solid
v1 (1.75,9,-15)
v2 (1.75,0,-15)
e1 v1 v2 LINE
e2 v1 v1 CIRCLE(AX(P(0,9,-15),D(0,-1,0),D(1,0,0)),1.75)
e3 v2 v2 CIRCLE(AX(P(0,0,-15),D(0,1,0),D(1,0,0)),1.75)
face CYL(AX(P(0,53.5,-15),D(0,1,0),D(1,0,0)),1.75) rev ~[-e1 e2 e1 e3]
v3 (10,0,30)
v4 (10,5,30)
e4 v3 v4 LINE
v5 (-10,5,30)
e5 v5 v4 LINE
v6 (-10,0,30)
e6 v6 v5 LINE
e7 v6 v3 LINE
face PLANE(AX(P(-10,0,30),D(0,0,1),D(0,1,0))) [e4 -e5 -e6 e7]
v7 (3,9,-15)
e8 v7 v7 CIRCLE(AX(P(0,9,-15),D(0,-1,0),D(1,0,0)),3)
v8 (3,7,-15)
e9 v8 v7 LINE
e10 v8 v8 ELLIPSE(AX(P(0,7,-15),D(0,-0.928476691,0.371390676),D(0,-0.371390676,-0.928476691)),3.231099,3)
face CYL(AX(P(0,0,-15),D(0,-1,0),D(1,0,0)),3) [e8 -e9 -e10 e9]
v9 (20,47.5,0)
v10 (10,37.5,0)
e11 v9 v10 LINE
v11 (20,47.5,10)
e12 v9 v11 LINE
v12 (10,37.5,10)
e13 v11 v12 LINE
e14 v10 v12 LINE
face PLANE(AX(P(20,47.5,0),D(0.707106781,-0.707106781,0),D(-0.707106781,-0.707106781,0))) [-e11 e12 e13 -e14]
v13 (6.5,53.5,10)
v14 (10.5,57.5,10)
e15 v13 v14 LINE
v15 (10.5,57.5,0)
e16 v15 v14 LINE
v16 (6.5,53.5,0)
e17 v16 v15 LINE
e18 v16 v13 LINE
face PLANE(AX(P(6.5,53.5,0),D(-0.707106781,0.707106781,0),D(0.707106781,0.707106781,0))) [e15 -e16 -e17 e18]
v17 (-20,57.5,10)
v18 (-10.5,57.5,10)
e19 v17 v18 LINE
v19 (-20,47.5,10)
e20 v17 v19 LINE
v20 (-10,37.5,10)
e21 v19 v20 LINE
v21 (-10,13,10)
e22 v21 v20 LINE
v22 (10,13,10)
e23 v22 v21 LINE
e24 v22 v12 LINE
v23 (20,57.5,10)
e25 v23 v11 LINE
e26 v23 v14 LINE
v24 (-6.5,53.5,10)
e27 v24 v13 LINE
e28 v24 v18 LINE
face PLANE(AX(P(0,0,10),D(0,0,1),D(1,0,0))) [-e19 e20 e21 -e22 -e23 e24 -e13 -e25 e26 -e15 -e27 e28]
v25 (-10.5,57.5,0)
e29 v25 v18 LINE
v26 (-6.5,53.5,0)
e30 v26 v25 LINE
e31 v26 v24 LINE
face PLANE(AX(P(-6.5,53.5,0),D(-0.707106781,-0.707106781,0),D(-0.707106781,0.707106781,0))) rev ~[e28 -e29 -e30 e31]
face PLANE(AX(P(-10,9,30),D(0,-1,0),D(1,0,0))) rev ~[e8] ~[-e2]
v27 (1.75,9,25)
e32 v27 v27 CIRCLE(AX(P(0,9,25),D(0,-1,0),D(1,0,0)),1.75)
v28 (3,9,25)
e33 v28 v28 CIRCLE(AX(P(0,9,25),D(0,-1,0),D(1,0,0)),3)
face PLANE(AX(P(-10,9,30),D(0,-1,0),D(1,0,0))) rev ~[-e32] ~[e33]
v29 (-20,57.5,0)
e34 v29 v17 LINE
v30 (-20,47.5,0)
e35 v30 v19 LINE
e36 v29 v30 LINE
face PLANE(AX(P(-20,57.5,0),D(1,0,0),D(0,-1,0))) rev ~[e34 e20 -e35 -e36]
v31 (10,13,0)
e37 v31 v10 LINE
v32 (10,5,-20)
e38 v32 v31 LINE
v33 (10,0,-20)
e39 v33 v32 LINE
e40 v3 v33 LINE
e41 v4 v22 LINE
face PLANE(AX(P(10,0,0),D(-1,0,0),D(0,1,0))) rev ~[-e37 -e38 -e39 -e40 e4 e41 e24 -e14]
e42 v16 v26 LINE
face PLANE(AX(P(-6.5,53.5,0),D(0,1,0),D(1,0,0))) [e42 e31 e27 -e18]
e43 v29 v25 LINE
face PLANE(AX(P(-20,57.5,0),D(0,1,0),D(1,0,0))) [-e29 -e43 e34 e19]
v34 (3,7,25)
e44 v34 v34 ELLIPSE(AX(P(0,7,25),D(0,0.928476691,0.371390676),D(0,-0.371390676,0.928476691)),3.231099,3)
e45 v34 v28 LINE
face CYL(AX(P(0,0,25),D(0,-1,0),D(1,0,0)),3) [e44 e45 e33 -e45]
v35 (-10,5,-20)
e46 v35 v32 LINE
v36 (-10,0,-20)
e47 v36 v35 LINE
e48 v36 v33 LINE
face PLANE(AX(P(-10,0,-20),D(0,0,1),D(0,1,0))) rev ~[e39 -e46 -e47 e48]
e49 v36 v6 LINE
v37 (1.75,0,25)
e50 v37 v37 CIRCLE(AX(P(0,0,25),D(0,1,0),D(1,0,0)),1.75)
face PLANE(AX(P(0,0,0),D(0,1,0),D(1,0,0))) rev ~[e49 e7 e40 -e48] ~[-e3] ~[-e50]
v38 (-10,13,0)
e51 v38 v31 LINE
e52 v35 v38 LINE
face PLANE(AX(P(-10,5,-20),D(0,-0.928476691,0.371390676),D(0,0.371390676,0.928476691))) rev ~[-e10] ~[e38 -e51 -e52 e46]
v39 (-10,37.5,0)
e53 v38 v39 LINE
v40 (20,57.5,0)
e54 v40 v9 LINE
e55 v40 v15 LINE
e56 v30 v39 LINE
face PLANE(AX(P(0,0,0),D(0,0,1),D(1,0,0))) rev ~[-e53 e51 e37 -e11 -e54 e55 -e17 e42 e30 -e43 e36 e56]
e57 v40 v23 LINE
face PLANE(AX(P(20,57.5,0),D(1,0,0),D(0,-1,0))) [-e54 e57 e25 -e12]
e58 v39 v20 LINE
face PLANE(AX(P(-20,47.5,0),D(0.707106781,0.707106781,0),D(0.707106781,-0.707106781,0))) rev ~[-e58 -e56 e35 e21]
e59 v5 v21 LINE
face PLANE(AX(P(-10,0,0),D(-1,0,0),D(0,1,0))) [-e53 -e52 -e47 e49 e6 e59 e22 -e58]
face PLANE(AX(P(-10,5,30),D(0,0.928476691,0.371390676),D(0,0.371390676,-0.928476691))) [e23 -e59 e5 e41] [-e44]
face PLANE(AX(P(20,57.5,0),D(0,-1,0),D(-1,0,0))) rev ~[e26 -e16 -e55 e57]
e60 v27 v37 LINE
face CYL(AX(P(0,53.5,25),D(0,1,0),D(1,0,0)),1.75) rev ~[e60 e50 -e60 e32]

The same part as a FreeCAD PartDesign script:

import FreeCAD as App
import Part
import Sketcher
Q = App.Units.Quantity


def add_polygon(sketch, points):
    """Adds a closed chain of lines whose ends are joined by coincident constraints."""
    first, n = sketch.GeometryCount, len(points)
    for a, b in zip(points, points[1:] + points[:1]):
        sketch.addGeometry(Part.LineSegment(App.Vector(*a, 0), App.Vector(*b, 0)), False)
    for i in range(n):
        sketch.addConstraint(Sketcher.Constraint("Coincident", first + i, 2, first + (i + 1) % n, 1))

doc = App.newDocument("Part")
body = doc.addObject("PartDesign::Body", "Body")

# Sketch on XY plane
sketch1 = body.newObject("Sketcher::SketchObject", "Sketch")
sketch1.AttachmentSupport = (doc.getObject("XY_Plane"), [""])
sketch1.MapMode = "FlatFace"
add_polygon(sketch1, [(6, 54), (-6, 54), (-10, 58), (-20, 58), (-20, 48), (-10, 38), (-10, 0), (10, 0), (10, 38), (20, 48), (20, 58), (10, 58)])  # lines 0-11
sketch1.addConstraint(Sketcher.Constraint("Horizontal", 0))
sketch1.addConstraint(Sketcher.Constraint("Horizontal", 2))
sketch1.addConstraint(Sketcher.Constraint("Vertical", 3))
sketch1.addConstraint(Sketcher.Constraint("Vertical", 5))
sketch1.addConstraint(Sketcher.Constraint("Horizontal", 6))
sketch1.addConstraint(Sketcher.Constraint("Vertical", 7))
sketch1.addConstraint(Sketcher.Constraint("Vertical", 9))
sketch1.addConstraint(Sketcher.Constraint("Horizontal", 10))
sketch1.addConstraint(Sketcher.Constraint("Symmetric", 5, 2, 6, 2, -1, 1))
sketch1.addConstraint(Sketcher.Constraint("Symmetric", 3, 2, 8, 2, -2))
sketch1.addConstraint(Sketcher.Constraint("Symmetric", 1, 2, 10, 2, -2))
sketch1.addConstraint(Sketcher.Constraint("Parallel", 1, 4))
sketch1.addConstraint(Sketcher.Constraint("Perpendicular", 4, 8))
sketch1.addConstraint(Sketcher.Constraint("Parallel", 8, 11))
sketch1.addConstraint(Sketcher.Constraint("Horizontal", 4, 2, 7, 2))
sketch1.addConstraint(Sketcher.Constraint("DistanceY", 3, 2, 3, 1, Q("10 mm")))
sketch1.addConstraint(Sketcher.Constraint("DistanceX", 2, 2, 2, 1, Q("9.5 mm")))
sketch1.addConstraint(Sketcher.Constraint("DistanceX", 4, 2, -1, 1, Q("10 mm")))
sketch1.addConstraint(Sketcher.Constraint("DistanceX", 1, 2, 0, 2, Q("4 mm")))
sketch1.addConstraint(Sketcher.Constraint("DistanceX", 3, 2, 4, 2, Q("10 mm")))
sketch1.addConstraint(Sketcher.Constraint("DistanceY", -1, 1, 0, 2, Q("53.5 mm")))
pad1 = body.newObject("PartDesign::Pad", "Pad")
pad1.Profile = sketch1
pad1.Length = 10

# Sketch on YZ plane
sketch2 = body.newObject("Sketcher::SketchObject", "Sketch001")
sketch2.AttachmentSupport = (doc.getObject("YZ_Plane"), [""])
sketch2.MapMode = "FlatFace"
sketch2.AttachmentOffset = App.Placement(App.Vector(0, 0, -10), App.Rotation())
add_polygon(sketch2, [(0, -20), (0, 30), (5, 30), (15, 5), (5, -20)])  # lines 0-4
sketch2.addConstraint(Sketcher.Constraint("Vertical", 0))
sketch2.addConstraint(Sketcher.Constraint("Horizontal", 1))
sketch2.addConstraint(Sketcher.Constraint("Horizontal", 4))
sketch2.addConstraint(Sketcher.Constraint("PointOnObject", 0, 2, -2))
sketch2.addConstraint(Sketcher.Constraint("Vertical", 1, 2, 3, 2))
sketch2.addConstraint(Sketcher.Constraint("Equal", 2, 3))
sketch2.addConstraint(Sketcher.Constraint("DistanceX", 1, 1, 1, 2, Q("5 mm")))
sketch2.addConstraint(Sketcher.Constraint("DistanceX", -1, 1, 2, 2, Q("15 mm")))
sketch2.addConstraint(Sketcher.Constraint("DistanceY", -1, 1, 2, 2, Q("5 mm")))
sketch2.addConstraint(Sketcher.Constraint("DistanceY", 2, 2, 1, 2, Q("25 mm")))
pad2 = body.newObject("PartDesign::Pad", "Pad001")
pad2.Profile = sketch2
pad2.Length = 20

# Sketch on XZ plane
sketch3 = body.newObject("Sketcher::SketchObject", "Sketch002")
sketch3.AttachmentSupport = (doc.getObject("XZ_Plane"), [""])
sketch3.MapMode = "FlatFace"
sketch3.AttachmentOffset = App.Placement(App.Vector(0, 0, -53.5), App.Rotation())
sketch3.addGeometry(Part.Circle(App.Vector(0, 25, 0), App.Vector(0, 0, 1), 1.8), False)
sketch3.addGeometry(Part.Circle(App.Vector(0, -15, 0), App.Vector(0, 0, 1), 1.8), False)
sketch3.addConstraint(Sketcher.Constraint("Equal", 0, 1))
sketch3.addConstraint(Sketcher.Constraint("PointOnObject", 0, 3, -2))
sketch3.addConstraint(Sketcher.Constraint("PointOnObject", 1, 3, -2))
sketch3.addConstraint(Sketcher.Constraint("Diameter", 0, Q("3.5 mm")))
sketch3.addConstraint(Sketcher.Constraint("DistanceY", -1, 1, 0, 3, Q("25 mm")))
sketch3.addConstraint(Sketcher.Constraint("DistanceY", 1, 3, -1, 1, Q("15 mm")))
pocket1 = body.newObject("PartDesign::Pocket", "Pocket")
pocket1.Profile = sketch3
pocket1.Type = "ThroughAll"
pocket1.Reversed = True

# Sketch on XZ plane
sketch4 = body.newObject("Sketcher::SketchObject", "Sketch003")
sketch4.AttachmentSupport = (doc.getObject("XZ_Plane"), [""])
sketch4.MapMode = "FlatFace"
sketch4.addGeometry(Part.Circle(App.Vector(0, 25, 0), App.Vector(0, 0, 1), 3), False)
sketch4.addGeometry(Part.Circle(App.Vector(0, 25, 0), App.Vector(0, 0, 1), 1.8), False)
sketch4.addGeometry(Part.Circle(App.Vector(0, -15, 0), App.Vector(0, 0, 1), 3), False)
sketch4.addGeometry(Part.Circle(App.Vector(0, -15, 0), App.Vector(0, 0, 1), 1.8), False)
sketch4.addConstraint(Sketcher.Constraint("Coincident", 1, 3, 0, 3))
sketch4.addConstraint(Sketcher.Constraint("Coincident", 3, 3, 2, 3))
sketch4.addConstraint(Sketcher.Constraint("Equal", 0, 2))
sketch4.addConstraint(Sketcher.Constraint("Equal", 1, 3))
sketch4.addConstraint(Sketcher.Constraint("PointOnObject", 0, 3, -2))
sketch4.addConstraint(Sketcher.Constraint("PointOnObject", 2, 3, -2))
sketch4.addConstraint(Sketcher.Constraint("Diameter", 0, Q("6 mm")))
sketch4.addConstraint(Sketcher.Constraint("Diameter", 1, Q("3.5 mm")))
sketch4.addConstraint(Sketcher.Constraint("DistanceY", -1, 1, 0, 3, Q("25 mm")))
sketch4.addConstraint(Sketcher.Constraint("DistanceY", 2, 3, -1, 1, Q("15 mm")))
pad3 = body.newObject("PartDesign::Pad", "Pad002")
pad3.Profile = sketch4
pad3.Length = 9
pad3.Reversed = True

doc.recompute()
